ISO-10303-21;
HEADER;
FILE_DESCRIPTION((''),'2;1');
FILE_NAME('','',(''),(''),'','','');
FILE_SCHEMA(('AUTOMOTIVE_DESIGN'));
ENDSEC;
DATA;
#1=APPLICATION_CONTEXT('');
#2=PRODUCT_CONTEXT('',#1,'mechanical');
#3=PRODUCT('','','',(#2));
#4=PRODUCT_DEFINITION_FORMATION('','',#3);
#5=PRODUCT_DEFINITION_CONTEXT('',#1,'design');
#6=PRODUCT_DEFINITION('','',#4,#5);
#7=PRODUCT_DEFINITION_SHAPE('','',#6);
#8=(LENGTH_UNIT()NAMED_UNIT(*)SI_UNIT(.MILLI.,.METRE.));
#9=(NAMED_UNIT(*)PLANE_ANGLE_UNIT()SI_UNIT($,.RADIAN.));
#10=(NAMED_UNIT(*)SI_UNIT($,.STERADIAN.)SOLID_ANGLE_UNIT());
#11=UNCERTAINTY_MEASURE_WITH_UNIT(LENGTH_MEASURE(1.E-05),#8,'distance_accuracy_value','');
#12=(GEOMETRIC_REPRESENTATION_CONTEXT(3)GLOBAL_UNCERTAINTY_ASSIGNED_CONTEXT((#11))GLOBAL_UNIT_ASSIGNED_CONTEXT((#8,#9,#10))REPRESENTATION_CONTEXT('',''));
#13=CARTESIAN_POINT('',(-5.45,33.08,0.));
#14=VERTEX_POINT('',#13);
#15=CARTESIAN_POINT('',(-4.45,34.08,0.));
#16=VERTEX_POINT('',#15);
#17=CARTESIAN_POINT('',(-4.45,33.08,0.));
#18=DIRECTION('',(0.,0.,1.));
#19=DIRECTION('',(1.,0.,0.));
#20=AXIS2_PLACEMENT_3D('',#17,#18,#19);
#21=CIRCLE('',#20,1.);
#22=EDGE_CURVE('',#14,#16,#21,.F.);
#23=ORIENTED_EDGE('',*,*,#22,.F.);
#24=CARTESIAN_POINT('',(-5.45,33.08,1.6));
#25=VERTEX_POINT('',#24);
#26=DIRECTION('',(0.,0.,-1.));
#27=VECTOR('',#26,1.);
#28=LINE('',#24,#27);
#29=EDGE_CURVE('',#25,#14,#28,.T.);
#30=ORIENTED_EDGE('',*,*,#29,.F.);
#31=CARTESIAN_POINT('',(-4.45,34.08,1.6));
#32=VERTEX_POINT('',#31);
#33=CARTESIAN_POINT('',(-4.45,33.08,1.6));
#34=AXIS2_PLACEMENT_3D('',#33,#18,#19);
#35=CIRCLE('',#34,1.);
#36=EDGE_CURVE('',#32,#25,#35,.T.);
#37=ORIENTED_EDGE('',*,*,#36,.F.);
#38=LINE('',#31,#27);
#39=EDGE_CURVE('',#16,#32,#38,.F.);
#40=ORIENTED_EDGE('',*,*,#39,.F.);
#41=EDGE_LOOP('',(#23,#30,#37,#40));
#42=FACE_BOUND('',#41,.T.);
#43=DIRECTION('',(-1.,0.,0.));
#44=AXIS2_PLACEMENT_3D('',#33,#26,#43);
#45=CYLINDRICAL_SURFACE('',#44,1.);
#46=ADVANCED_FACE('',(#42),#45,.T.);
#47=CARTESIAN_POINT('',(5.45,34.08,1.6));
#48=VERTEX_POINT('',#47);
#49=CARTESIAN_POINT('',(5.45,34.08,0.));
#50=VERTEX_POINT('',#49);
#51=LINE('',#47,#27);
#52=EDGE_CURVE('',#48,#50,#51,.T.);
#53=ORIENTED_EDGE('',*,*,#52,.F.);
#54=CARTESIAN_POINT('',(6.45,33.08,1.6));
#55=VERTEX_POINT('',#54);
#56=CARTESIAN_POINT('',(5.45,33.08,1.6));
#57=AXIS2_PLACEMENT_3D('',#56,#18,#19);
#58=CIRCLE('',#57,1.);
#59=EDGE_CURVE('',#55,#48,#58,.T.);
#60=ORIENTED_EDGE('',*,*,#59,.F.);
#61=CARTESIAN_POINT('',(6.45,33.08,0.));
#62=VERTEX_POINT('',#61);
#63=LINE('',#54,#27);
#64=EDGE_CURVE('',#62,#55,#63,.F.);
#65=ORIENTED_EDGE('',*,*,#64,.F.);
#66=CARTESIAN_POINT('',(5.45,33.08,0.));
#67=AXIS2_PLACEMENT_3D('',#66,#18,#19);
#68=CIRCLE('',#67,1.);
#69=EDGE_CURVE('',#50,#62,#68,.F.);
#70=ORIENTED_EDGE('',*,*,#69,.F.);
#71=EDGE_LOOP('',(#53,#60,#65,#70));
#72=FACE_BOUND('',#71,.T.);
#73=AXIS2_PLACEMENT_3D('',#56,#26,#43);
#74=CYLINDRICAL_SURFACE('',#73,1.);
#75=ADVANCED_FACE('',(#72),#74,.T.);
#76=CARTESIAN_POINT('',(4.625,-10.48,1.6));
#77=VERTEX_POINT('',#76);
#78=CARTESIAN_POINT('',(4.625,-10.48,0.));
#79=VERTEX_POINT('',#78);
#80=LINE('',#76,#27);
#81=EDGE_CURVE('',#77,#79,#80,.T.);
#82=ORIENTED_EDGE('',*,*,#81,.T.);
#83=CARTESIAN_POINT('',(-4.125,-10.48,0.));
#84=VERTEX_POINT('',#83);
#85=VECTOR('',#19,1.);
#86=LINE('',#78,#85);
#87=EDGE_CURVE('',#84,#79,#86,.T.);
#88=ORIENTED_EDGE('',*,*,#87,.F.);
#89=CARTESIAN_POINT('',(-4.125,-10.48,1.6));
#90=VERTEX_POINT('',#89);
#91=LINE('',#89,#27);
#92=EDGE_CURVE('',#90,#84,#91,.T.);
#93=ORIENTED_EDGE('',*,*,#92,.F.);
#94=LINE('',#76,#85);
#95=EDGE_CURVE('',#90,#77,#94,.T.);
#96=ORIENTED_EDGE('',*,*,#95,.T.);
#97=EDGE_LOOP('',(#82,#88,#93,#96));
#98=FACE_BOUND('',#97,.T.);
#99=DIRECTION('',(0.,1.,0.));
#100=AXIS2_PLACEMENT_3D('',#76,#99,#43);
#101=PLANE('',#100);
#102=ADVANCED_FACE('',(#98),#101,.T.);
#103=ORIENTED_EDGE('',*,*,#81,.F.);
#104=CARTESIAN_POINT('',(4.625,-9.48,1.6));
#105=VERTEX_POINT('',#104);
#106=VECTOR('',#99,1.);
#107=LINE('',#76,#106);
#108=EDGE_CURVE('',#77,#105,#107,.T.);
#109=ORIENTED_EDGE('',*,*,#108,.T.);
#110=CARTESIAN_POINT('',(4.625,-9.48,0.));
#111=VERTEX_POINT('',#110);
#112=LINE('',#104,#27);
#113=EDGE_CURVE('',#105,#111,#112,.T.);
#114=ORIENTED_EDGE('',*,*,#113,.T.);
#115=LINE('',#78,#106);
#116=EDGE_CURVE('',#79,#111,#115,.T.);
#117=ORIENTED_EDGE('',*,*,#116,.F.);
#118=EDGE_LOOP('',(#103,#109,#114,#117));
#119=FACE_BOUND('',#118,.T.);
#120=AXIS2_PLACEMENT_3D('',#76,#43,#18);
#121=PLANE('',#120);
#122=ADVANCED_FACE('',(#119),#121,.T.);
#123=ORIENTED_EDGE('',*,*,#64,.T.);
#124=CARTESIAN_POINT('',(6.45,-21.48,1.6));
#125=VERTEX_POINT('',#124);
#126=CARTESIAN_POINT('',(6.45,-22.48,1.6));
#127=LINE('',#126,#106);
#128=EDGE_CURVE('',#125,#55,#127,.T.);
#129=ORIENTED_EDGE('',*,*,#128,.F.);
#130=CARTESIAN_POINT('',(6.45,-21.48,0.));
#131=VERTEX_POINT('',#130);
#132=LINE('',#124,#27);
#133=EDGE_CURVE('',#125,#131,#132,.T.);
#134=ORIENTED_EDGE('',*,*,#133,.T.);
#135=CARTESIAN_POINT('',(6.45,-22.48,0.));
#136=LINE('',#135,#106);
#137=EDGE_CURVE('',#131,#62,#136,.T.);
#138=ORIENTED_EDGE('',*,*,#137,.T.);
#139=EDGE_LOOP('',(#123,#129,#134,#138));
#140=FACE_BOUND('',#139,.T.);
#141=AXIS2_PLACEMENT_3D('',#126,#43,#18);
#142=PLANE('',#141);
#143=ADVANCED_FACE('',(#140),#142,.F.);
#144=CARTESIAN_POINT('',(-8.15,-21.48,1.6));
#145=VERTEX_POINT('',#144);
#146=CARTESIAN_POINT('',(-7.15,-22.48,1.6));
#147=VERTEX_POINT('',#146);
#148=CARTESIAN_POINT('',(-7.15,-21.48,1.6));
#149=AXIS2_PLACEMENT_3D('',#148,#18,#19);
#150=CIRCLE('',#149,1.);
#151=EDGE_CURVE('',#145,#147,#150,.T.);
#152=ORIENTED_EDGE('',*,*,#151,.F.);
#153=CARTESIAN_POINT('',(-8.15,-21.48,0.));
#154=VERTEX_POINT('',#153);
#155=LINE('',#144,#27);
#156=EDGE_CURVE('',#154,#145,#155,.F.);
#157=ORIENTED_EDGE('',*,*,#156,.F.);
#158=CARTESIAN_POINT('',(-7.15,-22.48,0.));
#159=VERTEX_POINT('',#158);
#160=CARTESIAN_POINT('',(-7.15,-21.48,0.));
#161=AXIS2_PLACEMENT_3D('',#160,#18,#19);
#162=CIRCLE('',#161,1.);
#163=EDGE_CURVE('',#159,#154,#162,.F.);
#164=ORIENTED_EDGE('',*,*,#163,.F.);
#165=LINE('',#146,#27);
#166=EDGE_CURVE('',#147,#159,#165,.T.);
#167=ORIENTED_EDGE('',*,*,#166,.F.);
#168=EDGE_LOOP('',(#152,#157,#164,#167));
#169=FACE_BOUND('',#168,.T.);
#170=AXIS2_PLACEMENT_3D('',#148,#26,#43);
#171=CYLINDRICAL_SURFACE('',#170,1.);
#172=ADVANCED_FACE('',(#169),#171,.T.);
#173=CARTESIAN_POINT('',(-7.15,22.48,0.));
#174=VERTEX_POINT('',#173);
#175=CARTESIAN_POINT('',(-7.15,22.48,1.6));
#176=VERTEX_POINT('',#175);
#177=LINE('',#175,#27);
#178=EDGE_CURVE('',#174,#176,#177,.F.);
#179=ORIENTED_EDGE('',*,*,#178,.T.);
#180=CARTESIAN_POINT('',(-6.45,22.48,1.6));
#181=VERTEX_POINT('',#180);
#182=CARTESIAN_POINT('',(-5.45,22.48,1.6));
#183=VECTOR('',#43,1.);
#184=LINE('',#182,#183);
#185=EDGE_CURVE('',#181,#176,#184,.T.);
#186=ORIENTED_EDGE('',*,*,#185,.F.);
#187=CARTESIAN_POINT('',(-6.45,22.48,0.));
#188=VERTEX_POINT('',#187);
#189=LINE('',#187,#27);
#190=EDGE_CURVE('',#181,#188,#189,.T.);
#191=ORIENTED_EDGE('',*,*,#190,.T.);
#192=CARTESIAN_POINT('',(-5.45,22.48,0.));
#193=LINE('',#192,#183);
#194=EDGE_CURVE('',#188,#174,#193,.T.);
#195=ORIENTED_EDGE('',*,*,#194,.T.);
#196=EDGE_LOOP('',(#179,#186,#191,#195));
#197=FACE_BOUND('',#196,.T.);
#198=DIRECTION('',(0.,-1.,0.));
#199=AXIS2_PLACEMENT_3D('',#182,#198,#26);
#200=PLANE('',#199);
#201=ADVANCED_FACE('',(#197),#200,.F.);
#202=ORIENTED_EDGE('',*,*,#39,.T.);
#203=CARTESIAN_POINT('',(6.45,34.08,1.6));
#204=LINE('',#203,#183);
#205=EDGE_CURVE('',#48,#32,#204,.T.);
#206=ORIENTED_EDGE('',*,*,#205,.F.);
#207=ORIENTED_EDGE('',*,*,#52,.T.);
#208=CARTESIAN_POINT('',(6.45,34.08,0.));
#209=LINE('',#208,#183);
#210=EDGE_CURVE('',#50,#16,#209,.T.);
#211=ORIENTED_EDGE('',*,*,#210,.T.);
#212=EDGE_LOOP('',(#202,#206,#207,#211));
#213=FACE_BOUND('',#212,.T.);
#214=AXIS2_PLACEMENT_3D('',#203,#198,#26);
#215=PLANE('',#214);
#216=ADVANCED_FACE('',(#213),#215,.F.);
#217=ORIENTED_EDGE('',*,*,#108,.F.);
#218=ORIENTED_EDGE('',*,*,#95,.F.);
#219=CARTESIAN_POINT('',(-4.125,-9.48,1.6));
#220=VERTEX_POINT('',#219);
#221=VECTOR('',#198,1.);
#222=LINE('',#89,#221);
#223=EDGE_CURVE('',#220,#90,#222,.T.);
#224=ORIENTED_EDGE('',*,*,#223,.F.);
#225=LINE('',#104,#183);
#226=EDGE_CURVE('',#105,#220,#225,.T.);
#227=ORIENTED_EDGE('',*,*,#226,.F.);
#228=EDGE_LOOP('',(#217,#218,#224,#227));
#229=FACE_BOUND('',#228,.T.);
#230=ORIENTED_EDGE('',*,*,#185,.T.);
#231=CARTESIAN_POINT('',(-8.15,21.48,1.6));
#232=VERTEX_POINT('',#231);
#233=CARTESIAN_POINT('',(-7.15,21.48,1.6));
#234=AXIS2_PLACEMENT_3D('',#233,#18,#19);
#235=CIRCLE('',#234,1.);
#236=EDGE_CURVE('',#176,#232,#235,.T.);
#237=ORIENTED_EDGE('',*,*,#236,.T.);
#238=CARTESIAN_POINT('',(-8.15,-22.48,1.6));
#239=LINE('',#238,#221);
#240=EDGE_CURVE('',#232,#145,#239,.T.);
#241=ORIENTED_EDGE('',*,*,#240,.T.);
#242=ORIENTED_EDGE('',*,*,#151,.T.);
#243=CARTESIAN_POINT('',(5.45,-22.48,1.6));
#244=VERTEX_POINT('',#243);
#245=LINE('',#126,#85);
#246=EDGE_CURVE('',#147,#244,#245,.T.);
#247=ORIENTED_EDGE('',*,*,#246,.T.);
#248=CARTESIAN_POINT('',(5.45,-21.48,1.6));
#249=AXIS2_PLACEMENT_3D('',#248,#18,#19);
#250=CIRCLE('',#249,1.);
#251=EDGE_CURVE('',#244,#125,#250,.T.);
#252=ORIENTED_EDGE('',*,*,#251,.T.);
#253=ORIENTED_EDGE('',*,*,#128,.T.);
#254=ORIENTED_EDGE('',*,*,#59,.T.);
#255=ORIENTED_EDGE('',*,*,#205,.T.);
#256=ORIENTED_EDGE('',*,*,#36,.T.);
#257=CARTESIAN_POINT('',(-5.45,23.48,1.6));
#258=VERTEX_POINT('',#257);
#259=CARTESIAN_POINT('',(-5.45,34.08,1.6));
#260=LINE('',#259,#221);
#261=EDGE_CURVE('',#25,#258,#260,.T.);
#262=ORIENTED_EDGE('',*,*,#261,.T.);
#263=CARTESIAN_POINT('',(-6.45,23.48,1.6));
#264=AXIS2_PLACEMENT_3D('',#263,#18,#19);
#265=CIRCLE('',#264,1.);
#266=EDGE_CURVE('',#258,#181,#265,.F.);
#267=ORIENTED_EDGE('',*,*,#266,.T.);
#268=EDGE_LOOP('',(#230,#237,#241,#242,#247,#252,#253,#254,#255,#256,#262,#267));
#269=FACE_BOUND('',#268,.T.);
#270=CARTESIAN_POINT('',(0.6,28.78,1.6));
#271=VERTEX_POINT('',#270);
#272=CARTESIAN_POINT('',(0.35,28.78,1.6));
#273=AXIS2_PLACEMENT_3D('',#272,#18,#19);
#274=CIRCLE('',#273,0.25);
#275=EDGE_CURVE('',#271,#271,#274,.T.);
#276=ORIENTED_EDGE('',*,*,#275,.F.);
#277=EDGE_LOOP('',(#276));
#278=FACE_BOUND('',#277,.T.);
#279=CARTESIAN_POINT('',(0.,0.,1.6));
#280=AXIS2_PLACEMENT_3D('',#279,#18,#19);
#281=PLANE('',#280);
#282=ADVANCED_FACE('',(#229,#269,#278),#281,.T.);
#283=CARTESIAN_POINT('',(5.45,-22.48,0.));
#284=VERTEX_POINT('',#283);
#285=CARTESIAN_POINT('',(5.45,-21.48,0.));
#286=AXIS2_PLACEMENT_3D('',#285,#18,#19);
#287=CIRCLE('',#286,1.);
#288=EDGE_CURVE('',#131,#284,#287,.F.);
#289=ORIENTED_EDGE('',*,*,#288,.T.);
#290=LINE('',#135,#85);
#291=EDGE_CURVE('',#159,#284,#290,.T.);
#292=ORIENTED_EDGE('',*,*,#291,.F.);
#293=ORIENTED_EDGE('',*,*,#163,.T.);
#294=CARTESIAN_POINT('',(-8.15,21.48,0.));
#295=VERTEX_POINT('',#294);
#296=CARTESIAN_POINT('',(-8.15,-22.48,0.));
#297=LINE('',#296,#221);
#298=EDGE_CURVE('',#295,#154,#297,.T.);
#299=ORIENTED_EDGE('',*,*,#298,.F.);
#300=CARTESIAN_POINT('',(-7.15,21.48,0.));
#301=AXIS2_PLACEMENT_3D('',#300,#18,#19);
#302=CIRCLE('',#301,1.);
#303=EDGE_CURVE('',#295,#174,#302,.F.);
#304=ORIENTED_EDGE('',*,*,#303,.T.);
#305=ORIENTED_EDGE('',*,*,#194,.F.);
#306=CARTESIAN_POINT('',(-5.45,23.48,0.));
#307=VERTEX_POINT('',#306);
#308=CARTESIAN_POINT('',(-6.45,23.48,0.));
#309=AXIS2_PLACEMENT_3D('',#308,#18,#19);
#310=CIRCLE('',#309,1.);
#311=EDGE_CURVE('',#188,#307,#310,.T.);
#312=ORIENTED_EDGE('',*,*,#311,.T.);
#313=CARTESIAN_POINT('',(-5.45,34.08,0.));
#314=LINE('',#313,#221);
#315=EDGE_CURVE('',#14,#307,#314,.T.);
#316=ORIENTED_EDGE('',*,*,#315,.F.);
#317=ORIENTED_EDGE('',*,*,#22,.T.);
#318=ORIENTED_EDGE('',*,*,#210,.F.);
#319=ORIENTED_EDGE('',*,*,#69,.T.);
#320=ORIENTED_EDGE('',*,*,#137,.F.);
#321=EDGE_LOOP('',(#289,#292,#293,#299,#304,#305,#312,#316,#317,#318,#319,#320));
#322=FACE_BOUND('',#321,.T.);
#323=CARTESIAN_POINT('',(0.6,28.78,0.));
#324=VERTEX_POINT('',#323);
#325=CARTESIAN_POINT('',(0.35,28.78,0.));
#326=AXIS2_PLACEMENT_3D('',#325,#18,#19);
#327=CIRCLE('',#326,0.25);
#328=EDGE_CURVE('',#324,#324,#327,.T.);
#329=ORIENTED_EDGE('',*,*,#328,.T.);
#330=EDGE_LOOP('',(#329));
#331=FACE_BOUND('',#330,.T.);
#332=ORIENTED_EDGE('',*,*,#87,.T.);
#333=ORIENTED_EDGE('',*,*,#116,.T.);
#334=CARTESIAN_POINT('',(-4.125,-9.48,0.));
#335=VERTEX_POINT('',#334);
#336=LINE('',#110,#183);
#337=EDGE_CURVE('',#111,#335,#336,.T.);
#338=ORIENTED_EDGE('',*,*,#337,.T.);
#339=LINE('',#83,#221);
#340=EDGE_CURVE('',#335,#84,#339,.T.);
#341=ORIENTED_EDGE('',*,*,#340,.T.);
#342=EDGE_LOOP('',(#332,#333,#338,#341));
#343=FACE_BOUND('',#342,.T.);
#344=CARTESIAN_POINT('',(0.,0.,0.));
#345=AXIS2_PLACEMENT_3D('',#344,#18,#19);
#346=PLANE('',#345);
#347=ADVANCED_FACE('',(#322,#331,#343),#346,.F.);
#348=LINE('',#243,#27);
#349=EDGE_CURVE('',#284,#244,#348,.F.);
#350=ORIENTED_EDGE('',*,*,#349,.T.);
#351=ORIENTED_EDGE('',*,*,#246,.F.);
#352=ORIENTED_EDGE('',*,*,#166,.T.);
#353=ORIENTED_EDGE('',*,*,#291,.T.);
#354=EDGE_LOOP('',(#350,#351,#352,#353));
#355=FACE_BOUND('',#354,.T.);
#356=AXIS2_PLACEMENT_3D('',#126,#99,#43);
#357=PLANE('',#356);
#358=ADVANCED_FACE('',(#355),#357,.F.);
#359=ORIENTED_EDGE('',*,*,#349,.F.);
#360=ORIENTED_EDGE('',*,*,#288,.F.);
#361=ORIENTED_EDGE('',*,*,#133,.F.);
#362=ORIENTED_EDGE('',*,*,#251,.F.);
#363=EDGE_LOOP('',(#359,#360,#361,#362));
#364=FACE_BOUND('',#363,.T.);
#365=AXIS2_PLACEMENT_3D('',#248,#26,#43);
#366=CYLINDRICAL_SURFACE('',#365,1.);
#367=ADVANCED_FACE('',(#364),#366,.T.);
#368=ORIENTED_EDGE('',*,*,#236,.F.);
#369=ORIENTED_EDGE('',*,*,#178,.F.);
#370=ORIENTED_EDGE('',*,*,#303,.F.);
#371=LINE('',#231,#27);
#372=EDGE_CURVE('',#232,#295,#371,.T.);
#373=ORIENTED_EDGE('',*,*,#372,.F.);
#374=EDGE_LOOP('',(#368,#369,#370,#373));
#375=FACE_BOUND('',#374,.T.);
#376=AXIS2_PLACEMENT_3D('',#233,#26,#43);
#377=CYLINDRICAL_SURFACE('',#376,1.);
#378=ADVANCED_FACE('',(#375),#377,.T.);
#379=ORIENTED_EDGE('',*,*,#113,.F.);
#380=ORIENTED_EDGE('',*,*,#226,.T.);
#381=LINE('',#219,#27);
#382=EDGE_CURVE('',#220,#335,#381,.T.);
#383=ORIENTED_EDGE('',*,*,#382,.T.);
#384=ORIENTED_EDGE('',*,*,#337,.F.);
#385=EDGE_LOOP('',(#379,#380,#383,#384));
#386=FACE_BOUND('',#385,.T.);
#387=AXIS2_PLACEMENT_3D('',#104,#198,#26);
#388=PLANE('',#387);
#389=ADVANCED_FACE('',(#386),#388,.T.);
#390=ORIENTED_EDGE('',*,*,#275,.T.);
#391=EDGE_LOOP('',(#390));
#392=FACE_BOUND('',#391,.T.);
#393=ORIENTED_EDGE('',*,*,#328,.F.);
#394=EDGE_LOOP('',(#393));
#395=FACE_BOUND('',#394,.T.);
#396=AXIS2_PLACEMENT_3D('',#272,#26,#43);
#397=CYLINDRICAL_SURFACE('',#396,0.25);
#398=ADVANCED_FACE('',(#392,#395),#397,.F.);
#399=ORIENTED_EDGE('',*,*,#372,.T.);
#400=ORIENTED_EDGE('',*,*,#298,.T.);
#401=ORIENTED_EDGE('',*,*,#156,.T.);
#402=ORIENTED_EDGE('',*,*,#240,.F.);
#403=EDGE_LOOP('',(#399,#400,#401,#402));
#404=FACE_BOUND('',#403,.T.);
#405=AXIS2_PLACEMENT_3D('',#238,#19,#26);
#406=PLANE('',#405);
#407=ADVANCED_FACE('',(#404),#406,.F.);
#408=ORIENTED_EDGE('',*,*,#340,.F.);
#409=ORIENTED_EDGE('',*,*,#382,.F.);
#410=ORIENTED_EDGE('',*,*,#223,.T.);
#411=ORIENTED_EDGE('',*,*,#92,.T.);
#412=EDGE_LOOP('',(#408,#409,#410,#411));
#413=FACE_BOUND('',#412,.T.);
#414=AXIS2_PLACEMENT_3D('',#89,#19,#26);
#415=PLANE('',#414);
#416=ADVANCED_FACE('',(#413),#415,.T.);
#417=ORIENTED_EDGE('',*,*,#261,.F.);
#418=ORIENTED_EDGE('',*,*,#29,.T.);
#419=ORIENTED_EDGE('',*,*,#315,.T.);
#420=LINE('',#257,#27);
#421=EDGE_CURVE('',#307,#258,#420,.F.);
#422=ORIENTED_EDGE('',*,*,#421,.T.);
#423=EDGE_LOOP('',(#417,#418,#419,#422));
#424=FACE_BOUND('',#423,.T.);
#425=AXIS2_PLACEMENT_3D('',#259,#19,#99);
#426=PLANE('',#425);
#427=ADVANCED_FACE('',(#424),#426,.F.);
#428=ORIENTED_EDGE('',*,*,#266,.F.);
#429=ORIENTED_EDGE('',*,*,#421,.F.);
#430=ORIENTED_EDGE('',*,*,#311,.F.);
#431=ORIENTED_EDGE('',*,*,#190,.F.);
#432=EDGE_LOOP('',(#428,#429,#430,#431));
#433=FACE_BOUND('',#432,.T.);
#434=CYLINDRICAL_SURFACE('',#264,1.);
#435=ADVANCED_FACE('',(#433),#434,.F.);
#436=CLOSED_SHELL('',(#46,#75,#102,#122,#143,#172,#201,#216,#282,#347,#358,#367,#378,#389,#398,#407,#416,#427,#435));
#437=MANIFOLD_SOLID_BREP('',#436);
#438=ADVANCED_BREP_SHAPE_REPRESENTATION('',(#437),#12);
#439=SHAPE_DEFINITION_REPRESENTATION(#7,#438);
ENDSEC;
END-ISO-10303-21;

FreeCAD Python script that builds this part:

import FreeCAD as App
import Part
import Sketcher
Q = App.Units.Quantity


def edges_at(feature, points):
    """Names of the edges that pass closest to the given points."""
    edges = feature.Shape.Edges
    near = lambda p: min(range(len(edges)), key=lambda i: edges[i].distToShape(Part.Vertex(*p))[0])
    return sorted({f"Edge{near(p) + 1}" for p in points})


def add_polygon(sketch, points):
    """Adds a closed chain of lines whose ends are joined by coincident constraints."""
    first, n = sketch.GeometryCount, len(points)
    for a, b in zip(points, points[1:] + points[:1]):
        sketch.addGeometry(Part.LineSegment(App.Vector(*a, 0), App.Vector(*b, 0)), False)
    for i in range(n):
        sketch.addConstraint(Sketcher.Constraint("Coincident", first + i, 2, first + (i + 1) % n, 1))

doc = App.newDocument("Part")
params = doc.addObject("Spreadsheet::Sheet", "Params")
for row, (alias, value) in enumerate([
    ("sketch1_diameter", "0.5 mm"),
    ("sketch1_height", "1 mm"),
    ("sketch1_width", "14.6 mm"),
    ("sketch1_width2", "8.75 mm"),
    ("sketch1_height2", "56.56 mm"),
    ("pad1_length", "1.6 mm"),
    ("sketch2_width", "2.7 mm"),
    ("sketch2_height", "11.6 mm"),
    ("pocket1_length", "1.6 mm"),
    ("fillet_radius", "1 mm"),
], start=1):
    params.set(f"A{row}", alias)
    params.set(f"B{row}", "=" + value)
    params.setAlias(f"B{row}", alias)

body = doc.addObject("PartDesign::Body", "Body")

# Sketch on XY plane
sketch1 = body.newObject("Sketcher::SketchObject", "Sketch")
sketch1.AttachmentSupport = (doc.getObject("XY_Plane"), [""])
sketch1.MapMode = "FlatFace"
add_polygon(sketch1, [(-8.15, 34.08), (-8.15, -22.48), (6.45, -22.48), (6.45, 34.08)])  # lines 0-3
add_polygon(sketch1, [(4.62, -10.48), (-4.12, -10.48), (-4.12, -9.48), (4.62, -9.48)])  # lines 4-7
sketch1.addGeometry(Part.Circle(App.Vector(0.35, 28.78, 0), App.Vector(0, 0, 1), 0.25), False)  # 8
sketch1.addConstraint([
    Sketcher.Constraint("Vertical", 0),
    Sketcher.Constraint("Horizontal", 1),
    Sketcher.Constraint("Vertical", 2),
    Sketcher.Constraint("Horizontal", 3),
    Sketcher.Constraint("Horizontal", 4),
    Sketcher.Constraint("Vertical", 5),
    Sketcher.Constraint("Horizontal", 6),
    Sketcher.Constraint("Vertical", 7),
    Sketcher.Constraint("Diameter", 8, Q("0.5 mm")),
    Sketcher.Constraint("DistanceY", 5, 1, 5, 2, Q("1 mm")),
    Sketcher.Constraint("DistanceX", 1, 1, 1, 2, Q("14.6 mm")),
    Sketcher.Constraint("DistanceY", 0, 2, 4, 2, Q("12 mm")),
    Sketcher.Constraint("DistanceX", 4, 2, 4, 1, Q("8.75 mm")),
    Sketcher.Constraint("DistanceY", 0, 2, 0, 1, Q("56.56 mm")),
    Sketcher.Constraint("DistanceX", 0, 2, 8, 3, Q("8.5 mm")),
    Sketcher.Constraint("DistanceY", 8, 3, 2, 2, Q("5.3 mm")),
    Sketcher.Constraint("DistanceX", -1, 1, 8, 3, Q("0.35 mm")),
    Sketcher.Constraint("DistanceY", -1, 1, 8, 3, Q("28.78 mm")),
    Sketcher.Constraint("DistanceX", 4, 2, -1, 1, Q("4.125 mm")),
])
sketch1.setExpression("Constraints[16]", "Params.sketch1_diameter")
sketch1.setExpression("Constraints[17]", "Params.sketch1_height")
sketch1.setExpression("Constraints[18]", "Params.sketch1_width")
sketch1.setExpression("Constraints[20]", "Params.sketch1_width2")
sketch1.setExpression("Constraints[21]", "Params.sketch1_height2")
pad1 = body.newObject("PartDesign::Pad", "Pad")
pad1.Profile = sketch1
pad1.setExpression("Length", "Params.pad1_length")

# Sketch on XY plane
sketch2 = body.newObject("Sketcher::SketchObject", "Sketch001")
sketch2.AttachmentSupport = (doc.getObject("XY_Plane"), [""])
sketch2.MapMode = "FlatFace"
add_polygon(sketch2, [(-5.5, 34.1), (-5.5, 22.5), (-8.2, 22.5), (-8.2, 34.1)])  # lines 0-3
sketch2.addConstraint([
    Sketcher.Constraint("Vertical", 0),
    Sketcher.Constraint("Horizontal", 1),
    Sketcher.Constraint("Vertical", 2),
    Sketcher.Constraint("Horizontal", 3),
    Sketcher.Constraint("DistanceX", 1, 2, 1, 1, Q("2.7 mm")),
    Sketcher.Constraint("DistanceY", 0, 2, 0, 1, Q("11.6 mm")),
    Sketcher.Constraint("DistanceX", 0, 2, -1, 1, Q("5.45 mm")),
    Sketcher.Constraint("DistanceY", -1, 1, 0, 2, Q("22.48 mm")),
])
sketch2.setExpression("Constraints[8]", "Params.sketch2_width")
sketch2.setExpression("Constraints[9]", "Params.sketch2_height")
pocket1 = body.newObject("PartDesign::Pocket", "Pocket")
pocket1.Profile = sketch2
pocket1.setExpression("Length", "Params.pocket1_length")
pocket1.Reversed = True
doc.recompute()

fillet = body.newObject("PartDesign::Fillet", "Fillet")
fillet.Base = (pocket1, edges_at(pocket1, [
    (-5.45, 22.48, 0.8),
    (-5.45, 34.08, 0.8),
    (-8.15, 22.48, 0.8),
    (6.45, -22.48, 0.8),
    (-8.15, -22.48, 0.8),
    (6.45, 34.08, 0.8),
]))
fillet.setExpression("Radius", "Params.fillet_radius")

doc.recompute()
